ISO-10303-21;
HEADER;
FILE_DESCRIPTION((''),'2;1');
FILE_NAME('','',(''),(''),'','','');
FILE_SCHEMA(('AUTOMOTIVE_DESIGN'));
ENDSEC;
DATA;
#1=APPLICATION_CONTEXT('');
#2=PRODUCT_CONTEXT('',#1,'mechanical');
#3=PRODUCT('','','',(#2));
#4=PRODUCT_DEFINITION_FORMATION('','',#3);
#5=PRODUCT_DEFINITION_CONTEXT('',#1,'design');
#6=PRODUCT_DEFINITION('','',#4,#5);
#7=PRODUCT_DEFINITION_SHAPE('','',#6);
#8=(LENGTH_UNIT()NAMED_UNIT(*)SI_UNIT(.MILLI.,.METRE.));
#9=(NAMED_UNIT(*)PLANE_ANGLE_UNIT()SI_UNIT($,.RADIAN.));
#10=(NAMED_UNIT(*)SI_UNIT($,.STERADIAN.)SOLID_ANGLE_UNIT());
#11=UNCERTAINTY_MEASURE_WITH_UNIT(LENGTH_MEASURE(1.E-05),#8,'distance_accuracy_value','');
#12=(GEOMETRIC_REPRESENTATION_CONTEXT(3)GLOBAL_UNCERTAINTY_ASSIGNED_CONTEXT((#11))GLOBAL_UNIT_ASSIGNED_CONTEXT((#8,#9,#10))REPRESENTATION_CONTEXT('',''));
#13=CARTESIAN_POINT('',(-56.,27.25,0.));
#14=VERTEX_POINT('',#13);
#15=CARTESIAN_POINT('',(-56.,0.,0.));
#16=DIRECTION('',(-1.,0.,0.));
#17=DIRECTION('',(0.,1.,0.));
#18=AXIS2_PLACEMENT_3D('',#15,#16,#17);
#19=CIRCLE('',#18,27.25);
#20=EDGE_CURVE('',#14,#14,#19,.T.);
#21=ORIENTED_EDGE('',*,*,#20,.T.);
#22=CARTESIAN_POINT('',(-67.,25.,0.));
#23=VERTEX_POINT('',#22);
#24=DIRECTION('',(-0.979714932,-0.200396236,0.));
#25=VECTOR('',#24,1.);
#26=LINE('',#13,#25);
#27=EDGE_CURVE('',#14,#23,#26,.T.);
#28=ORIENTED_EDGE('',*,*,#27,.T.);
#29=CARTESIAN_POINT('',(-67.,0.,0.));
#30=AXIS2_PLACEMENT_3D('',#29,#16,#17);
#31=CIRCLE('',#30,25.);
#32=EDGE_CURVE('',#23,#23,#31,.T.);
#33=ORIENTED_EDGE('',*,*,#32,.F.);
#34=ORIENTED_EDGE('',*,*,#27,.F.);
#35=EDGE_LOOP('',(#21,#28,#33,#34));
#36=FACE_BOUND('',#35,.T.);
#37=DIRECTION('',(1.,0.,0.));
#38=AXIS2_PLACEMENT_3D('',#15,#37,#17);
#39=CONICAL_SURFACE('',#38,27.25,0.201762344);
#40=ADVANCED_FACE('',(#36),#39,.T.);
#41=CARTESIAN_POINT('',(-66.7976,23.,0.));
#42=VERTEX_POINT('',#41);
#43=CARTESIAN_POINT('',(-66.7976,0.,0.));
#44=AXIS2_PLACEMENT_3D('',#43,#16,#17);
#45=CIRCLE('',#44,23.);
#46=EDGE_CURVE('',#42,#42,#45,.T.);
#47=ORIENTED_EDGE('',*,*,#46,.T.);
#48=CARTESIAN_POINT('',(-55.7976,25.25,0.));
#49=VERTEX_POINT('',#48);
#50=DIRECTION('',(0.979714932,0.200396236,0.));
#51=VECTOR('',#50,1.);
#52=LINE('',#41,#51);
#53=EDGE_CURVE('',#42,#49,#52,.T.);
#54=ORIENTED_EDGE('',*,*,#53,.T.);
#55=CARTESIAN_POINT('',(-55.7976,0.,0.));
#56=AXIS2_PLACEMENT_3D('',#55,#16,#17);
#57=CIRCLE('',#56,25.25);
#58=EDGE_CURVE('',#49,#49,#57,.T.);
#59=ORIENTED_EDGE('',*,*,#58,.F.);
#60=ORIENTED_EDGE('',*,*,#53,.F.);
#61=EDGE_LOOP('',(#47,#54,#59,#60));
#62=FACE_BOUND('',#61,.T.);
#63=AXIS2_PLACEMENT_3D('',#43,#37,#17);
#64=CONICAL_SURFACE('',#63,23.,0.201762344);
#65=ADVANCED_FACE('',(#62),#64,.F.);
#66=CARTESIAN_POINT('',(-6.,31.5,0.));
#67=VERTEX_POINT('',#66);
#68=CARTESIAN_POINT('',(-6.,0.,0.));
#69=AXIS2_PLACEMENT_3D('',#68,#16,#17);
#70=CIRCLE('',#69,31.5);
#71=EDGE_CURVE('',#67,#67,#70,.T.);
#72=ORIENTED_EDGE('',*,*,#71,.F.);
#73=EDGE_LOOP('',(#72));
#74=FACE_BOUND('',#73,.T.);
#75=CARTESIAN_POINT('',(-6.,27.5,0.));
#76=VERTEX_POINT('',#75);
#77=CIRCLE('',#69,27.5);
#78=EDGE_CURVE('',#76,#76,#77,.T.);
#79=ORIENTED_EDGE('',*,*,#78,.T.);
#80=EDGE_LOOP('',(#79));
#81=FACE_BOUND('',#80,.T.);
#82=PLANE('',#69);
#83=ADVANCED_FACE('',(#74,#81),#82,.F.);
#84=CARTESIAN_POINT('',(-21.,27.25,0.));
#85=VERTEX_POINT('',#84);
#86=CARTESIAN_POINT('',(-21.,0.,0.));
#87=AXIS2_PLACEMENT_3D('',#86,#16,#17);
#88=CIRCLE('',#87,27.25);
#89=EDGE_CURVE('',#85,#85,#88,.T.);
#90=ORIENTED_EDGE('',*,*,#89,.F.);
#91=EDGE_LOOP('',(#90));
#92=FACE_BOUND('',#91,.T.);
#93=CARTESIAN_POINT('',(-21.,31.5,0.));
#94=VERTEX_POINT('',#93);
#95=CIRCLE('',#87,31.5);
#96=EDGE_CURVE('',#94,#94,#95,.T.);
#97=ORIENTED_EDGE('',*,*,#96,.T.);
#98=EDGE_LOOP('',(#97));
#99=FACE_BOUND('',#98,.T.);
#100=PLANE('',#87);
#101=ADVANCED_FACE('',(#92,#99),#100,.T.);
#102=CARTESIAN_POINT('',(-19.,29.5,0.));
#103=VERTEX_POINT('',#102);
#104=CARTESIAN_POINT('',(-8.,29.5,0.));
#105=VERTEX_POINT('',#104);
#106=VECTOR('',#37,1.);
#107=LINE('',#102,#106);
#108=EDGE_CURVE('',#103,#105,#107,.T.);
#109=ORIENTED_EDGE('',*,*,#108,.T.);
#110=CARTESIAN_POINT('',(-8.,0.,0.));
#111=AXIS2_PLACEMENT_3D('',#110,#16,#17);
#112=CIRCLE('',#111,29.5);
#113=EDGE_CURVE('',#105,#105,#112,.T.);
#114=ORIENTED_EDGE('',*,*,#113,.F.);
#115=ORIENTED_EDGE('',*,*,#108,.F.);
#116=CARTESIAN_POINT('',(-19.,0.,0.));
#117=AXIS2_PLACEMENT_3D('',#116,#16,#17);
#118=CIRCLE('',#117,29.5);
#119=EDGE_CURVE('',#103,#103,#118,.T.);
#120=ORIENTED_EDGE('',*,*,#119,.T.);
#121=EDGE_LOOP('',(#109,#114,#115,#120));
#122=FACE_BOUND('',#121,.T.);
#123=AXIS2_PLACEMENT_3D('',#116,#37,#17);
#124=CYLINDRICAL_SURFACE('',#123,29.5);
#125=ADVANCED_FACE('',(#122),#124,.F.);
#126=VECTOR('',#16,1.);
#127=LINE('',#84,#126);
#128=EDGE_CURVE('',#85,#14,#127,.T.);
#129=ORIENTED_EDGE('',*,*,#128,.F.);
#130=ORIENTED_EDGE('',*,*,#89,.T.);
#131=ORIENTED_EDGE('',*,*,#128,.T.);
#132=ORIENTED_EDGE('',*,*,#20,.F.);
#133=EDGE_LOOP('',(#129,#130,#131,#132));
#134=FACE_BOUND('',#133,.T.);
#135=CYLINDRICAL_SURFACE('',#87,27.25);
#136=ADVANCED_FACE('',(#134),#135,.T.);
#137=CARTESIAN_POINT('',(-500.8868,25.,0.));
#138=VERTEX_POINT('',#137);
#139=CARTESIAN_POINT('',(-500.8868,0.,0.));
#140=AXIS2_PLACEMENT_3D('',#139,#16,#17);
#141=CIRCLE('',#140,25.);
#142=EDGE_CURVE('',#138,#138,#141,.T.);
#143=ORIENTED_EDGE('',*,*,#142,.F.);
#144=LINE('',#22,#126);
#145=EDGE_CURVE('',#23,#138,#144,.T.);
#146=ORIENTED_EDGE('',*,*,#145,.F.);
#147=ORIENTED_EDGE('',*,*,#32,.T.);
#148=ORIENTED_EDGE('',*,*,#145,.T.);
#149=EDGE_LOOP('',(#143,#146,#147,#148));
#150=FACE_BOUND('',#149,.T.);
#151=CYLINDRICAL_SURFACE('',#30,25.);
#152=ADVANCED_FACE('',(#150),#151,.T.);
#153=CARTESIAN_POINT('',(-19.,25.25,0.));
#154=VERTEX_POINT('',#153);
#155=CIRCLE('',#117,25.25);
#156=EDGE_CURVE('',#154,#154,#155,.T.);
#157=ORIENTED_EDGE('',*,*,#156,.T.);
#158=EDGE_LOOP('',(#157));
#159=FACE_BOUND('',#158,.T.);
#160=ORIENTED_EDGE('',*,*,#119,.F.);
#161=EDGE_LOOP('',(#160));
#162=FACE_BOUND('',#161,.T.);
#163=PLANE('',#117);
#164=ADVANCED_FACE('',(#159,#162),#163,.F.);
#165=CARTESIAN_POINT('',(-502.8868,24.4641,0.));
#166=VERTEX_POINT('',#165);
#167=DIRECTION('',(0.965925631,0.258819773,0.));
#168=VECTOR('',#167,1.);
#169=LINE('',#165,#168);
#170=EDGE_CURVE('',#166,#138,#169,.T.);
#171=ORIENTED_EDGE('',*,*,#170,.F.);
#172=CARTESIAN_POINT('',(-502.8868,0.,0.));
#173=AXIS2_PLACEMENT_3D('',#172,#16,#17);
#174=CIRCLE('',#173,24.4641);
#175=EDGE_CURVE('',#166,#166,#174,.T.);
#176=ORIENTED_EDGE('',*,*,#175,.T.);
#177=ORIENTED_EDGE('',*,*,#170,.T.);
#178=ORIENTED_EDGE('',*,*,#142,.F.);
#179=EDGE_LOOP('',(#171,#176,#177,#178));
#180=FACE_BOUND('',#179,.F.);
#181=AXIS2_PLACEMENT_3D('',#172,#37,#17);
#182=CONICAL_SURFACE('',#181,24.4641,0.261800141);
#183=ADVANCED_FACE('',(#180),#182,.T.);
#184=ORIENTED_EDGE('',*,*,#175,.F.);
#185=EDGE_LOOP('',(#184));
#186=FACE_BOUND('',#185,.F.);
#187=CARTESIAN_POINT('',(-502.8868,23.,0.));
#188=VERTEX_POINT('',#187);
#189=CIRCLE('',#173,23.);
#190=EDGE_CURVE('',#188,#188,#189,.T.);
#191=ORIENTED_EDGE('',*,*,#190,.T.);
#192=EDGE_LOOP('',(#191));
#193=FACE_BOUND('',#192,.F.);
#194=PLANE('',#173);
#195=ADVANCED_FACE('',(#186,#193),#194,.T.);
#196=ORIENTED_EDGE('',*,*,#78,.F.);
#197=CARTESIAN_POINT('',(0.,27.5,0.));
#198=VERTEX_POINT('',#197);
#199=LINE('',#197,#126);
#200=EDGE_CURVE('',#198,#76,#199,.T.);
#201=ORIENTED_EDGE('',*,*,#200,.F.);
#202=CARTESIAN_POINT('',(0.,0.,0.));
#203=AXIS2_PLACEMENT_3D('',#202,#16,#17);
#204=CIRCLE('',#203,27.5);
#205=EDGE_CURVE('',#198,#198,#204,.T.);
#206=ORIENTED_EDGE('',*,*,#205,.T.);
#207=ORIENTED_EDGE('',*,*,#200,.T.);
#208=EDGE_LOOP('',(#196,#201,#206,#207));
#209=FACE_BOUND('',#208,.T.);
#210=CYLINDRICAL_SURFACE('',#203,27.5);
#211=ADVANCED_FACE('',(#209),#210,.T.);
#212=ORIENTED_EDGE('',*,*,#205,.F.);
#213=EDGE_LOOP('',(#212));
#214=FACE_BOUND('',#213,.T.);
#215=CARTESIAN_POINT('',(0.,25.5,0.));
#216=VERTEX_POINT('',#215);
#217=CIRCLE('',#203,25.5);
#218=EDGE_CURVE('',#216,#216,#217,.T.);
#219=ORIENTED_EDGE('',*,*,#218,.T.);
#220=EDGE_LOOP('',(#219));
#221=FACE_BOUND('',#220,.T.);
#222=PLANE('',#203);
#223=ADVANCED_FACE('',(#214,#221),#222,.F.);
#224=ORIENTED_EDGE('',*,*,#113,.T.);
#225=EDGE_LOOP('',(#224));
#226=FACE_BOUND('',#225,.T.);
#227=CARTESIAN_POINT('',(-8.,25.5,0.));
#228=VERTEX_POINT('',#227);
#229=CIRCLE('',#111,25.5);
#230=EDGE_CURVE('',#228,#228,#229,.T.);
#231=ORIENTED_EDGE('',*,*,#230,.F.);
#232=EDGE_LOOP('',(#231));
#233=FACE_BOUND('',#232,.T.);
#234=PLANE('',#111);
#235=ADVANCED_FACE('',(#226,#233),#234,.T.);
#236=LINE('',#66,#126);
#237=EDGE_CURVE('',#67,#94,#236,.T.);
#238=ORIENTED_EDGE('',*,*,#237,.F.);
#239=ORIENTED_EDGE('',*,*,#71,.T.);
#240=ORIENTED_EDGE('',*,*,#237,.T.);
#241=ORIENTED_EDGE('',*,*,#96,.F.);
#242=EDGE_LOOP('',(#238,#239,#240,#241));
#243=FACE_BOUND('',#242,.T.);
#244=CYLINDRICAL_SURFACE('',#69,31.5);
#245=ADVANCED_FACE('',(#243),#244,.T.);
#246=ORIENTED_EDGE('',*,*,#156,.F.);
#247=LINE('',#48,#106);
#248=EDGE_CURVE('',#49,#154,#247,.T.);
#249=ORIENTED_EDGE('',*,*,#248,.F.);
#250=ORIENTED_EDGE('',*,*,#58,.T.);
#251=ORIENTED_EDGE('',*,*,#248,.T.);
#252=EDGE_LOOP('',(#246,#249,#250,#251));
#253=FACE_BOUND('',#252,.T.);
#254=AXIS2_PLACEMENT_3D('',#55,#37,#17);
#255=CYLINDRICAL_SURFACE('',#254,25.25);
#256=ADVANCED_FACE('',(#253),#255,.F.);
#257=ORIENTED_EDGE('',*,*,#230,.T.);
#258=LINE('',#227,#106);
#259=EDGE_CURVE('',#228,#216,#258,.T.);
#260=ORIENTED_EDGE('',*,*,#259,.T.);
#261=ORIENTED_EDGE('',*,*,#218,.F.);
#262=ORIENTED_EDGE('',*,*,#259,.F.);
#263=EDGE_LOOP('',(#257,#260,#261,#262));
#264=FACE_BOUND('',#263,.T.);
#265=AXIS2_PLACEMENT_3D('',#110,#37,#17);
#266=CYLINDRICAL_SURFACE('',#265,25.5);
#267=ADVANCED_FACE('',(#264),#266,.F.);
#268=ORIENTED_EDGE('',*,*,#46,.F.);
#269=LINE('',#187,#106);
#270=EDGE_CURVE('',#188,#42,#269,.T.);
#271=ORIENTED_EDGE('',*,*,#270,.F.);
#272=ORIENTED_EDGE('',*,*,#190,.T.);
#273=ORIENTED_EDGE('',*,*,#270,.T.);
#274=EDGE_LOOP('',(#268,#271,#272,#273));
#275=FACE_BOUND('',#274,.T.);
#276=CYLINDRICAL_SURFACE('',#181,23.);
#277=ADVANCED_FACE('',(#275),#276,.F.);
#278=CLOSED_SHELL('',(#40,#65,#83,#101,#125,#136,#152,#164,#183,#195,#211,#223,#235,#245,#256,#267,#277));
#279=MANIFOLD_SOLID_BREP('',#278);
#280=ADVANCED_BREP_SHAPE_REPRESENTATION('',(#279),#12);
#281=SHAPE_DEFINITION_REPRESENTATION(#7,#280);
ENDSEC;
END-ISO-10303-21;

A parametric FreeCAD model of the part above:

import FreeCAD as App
import Part
import Sketcher
from FreeCAD import Vector
Q = App.Units.Quantity

doc = App.newDocument("Part")
body = doc.addObject("PartDesign::Body", "Body")

# Sketch on XY plane
sketch1 = body.newObject("Sketcher::SketchObject", "Sketch")
sketch1.AttachmentSupport = (doc.getObject("XY_Plane"), [""])
sketch1.MapMode = "FlatFace"
sketch1.addGeometry([
    Part.LineSegment(Vector(-502.9, 24.5, 0), Vector(-502.9, 23, 0)),  # 0
    Part.LineSegment(Vector(-502.9, 23, 0), Vector(-66.8, 23, 0)),  # 1
    Part.LineSegment(Vector(-66.8, 23, 0), Vector(-55.8, 25.2, 0)),  # 2
    Part.LineSegment(Vector(-55.8, 25.2, 0), Vector(-19, 25.2, 0)),  # 3
    Part.LineSegment(Vector(-19, 25.2, 0), Vector(-19, 29.5, 0)),  # 4
    Part.LineSegment(Vector(-19, 29.5, 0), Vector(-8, 29.5, 0)),  # 5
    Part.LineSegment(Vector(-8, 29.5, 0), Vector(-8, 25.5, 0)),  # 6
    Part.LineSegment(Vector(-8, 25.5, 0), Vector(0, 25.5, 0)),  # 7
    Part.LineSegment(Vector(0, 25.5, 0), Vector(0, 27.5, 0)),  # 8
    Part.LineSegment(Vector(0, 27.5, 0), Vector(-6, 27.5, 0)),  # 9
    Part.LineSegment(Vector(-6, 27.5, 0), Vector(-6, 31.5, 0)),  # 10
    Part.LineSegment(Vector(-6, 31.5, 0), Vector(-21, 31.5, 0)),  # 11
    Part.LineSegment(Vector(-21, 31.5, 0), Vector(-21, 27.2, 0)),  # 12
    Part.LineSegment(Vector(-21, 27.2, 0), Vector(-56, 27.2, 0)),  # 13
    Part.LineSegment(Vector(-56, 27.2, 0), Vector(-67, 25, 0)),  # 14
    Part.LineSegment(Vector(-67, 25, 0), Vector(-500.9, 25, 0)),  # 15
    Part.LineSegment(Vector(-500.9, 25, 0), Vector(-502.9, 24.5, 0)),  # 16
], False)
sketch1.addConstraint([
    Sketcher.Constraint("Coincident", 0, 2, 1, 1),
    Sketcher.Constraint("Coincident", 1, 2, 2, 1),
    Sketcher.Constraint("Coincident", 2, 2, 3, 1),
    Sketcher.Constraint("Coincident", 3, 2, 4, 1),
    Sketcher.Constraint("Coincident", 4, 2, 5, 1),
    Sketcher.Constraint("Coincident", 5, 2, 6, 1),
    Sketcher.Constraint("Coincident", 6, 2, 7, 1),
    Sketcher.Constraint("Coincident", 7, 2, 8, 1),
    Sketcher.Constraint("Coincident", 8, 2, 9, 1),
    Sketcher.Constraint("Coincident", 9, 2, 10, 1),
    Sketcher.Constraint("Coincident", 10, 2, 11, 1),
    Sketcher.Constraint("Coincident", 11, 2, 12, 1),
    Sketcher.Constraint("Coincident", 12, 2, 13, 1),
    Sketcher.Constraint("Coincident", 13, 2, 14, 1),
    Sketcher.Constraint("Coincident", 14, 2, 15, 1),
    Sketcher.Constraint("Coincident", 15, 2, 16, 1),
    Sketcher.Constraint("Coincident", 16, 2, 0, 1),
    Sketcher.Constraint("Vertical", 0),
    Sketcher.Constraint("Horizontal", 1),
    Sketcher.Constraint("Horizontal", 3),
    Sketcher.Constraint("Vertical", 4),
    Sketcher.Constraint("Horizontal", 5),
    Sketcher.Constraint("Vertical", 6),
    Sketcher.Constraint("Horizontal", 7),
    Sketcher.Constraint("Vertical", 8),
    Sketcher.Constraint("Horizontal", 9),
    Sketcher.Constraint("Vertical", 10),
    Sketcher.Constraint("Horizontal", 11),
    Sketcher.Constraint("Vertical", 12),
    Sketcher.Constraint("Horizontal", 13),
    Sketcher.Constraint("Horizontal", 15),
    Sketcher.Constraint("PointOnObject", 7, 2, -2),
    Sketcher.Constraint("Parallel", 2, 14),
    Sketcher.Constraint("Equal", 6, 10),
    Sketcher.Constraint("Equal", 4, 12),
    Sketcher.Constraint("Equal", 2, 14),
    Sketcher.Constraint("DistanceX", 9, 2, 9, 1, Q("6 mm")),
    Sketcher.Constraint("DistanceX", 11, 2, 11, 1, Q("15 mm")),
    Sketcher.Constraint("DistanceX", 13, 2, 13, 1, Q("35 mm")),
    Sketcher.Constraint("DistanceY", 8, 1, 8, 2, Q("2 mm")),
    Sketcher.Constraint("DistanceY", 8, 2, 5, 2, Q("2 mm")),
    Sketcher.Constraint("DistanceX", 5, 2, 9, 2, Q("2 mm")),
    Sketcher.Constraint("DistanceX", 11, 2, 4, 2, Q("2 mm")),
    Sketcher.Constraint("DistanceX", 14, 2, 12, 2, Q("46 mm")),
    Sketcher.Constraint("DistanceX", 0, 2, 15, 2, Q("2 mm")),
    Sketcher.Constraint("Angle", 16, Q("-165 deg")),
    Sketcher.Constraint("DistanceY", -1, 1, 0, 2, Q("23 mm")),
    Sketcher.Constraint("DistanceY", 4, 1, 4, 2, Q("4.25 mm")),
    Sketcher.Constraint("DistanceY", -1, 1, 4, 2, Q("29.5 mm")),
    Sketcher.Constraint("DistanceX", 1, 1, 1, 2, Q("436.0892 mm")),
    Sketcher.Constraint("DistanceX", 3, 1, 3, 2, Q("36.7976 mm")),
])
revolution = body.newObject("PartDesign::Revolution", "Revolution")
revolution.Profile = sketch1
revolution.ReferenceAxis = (sketch1, ["H_Axis"])
revolution.Angle = 360

doc.recompute()
